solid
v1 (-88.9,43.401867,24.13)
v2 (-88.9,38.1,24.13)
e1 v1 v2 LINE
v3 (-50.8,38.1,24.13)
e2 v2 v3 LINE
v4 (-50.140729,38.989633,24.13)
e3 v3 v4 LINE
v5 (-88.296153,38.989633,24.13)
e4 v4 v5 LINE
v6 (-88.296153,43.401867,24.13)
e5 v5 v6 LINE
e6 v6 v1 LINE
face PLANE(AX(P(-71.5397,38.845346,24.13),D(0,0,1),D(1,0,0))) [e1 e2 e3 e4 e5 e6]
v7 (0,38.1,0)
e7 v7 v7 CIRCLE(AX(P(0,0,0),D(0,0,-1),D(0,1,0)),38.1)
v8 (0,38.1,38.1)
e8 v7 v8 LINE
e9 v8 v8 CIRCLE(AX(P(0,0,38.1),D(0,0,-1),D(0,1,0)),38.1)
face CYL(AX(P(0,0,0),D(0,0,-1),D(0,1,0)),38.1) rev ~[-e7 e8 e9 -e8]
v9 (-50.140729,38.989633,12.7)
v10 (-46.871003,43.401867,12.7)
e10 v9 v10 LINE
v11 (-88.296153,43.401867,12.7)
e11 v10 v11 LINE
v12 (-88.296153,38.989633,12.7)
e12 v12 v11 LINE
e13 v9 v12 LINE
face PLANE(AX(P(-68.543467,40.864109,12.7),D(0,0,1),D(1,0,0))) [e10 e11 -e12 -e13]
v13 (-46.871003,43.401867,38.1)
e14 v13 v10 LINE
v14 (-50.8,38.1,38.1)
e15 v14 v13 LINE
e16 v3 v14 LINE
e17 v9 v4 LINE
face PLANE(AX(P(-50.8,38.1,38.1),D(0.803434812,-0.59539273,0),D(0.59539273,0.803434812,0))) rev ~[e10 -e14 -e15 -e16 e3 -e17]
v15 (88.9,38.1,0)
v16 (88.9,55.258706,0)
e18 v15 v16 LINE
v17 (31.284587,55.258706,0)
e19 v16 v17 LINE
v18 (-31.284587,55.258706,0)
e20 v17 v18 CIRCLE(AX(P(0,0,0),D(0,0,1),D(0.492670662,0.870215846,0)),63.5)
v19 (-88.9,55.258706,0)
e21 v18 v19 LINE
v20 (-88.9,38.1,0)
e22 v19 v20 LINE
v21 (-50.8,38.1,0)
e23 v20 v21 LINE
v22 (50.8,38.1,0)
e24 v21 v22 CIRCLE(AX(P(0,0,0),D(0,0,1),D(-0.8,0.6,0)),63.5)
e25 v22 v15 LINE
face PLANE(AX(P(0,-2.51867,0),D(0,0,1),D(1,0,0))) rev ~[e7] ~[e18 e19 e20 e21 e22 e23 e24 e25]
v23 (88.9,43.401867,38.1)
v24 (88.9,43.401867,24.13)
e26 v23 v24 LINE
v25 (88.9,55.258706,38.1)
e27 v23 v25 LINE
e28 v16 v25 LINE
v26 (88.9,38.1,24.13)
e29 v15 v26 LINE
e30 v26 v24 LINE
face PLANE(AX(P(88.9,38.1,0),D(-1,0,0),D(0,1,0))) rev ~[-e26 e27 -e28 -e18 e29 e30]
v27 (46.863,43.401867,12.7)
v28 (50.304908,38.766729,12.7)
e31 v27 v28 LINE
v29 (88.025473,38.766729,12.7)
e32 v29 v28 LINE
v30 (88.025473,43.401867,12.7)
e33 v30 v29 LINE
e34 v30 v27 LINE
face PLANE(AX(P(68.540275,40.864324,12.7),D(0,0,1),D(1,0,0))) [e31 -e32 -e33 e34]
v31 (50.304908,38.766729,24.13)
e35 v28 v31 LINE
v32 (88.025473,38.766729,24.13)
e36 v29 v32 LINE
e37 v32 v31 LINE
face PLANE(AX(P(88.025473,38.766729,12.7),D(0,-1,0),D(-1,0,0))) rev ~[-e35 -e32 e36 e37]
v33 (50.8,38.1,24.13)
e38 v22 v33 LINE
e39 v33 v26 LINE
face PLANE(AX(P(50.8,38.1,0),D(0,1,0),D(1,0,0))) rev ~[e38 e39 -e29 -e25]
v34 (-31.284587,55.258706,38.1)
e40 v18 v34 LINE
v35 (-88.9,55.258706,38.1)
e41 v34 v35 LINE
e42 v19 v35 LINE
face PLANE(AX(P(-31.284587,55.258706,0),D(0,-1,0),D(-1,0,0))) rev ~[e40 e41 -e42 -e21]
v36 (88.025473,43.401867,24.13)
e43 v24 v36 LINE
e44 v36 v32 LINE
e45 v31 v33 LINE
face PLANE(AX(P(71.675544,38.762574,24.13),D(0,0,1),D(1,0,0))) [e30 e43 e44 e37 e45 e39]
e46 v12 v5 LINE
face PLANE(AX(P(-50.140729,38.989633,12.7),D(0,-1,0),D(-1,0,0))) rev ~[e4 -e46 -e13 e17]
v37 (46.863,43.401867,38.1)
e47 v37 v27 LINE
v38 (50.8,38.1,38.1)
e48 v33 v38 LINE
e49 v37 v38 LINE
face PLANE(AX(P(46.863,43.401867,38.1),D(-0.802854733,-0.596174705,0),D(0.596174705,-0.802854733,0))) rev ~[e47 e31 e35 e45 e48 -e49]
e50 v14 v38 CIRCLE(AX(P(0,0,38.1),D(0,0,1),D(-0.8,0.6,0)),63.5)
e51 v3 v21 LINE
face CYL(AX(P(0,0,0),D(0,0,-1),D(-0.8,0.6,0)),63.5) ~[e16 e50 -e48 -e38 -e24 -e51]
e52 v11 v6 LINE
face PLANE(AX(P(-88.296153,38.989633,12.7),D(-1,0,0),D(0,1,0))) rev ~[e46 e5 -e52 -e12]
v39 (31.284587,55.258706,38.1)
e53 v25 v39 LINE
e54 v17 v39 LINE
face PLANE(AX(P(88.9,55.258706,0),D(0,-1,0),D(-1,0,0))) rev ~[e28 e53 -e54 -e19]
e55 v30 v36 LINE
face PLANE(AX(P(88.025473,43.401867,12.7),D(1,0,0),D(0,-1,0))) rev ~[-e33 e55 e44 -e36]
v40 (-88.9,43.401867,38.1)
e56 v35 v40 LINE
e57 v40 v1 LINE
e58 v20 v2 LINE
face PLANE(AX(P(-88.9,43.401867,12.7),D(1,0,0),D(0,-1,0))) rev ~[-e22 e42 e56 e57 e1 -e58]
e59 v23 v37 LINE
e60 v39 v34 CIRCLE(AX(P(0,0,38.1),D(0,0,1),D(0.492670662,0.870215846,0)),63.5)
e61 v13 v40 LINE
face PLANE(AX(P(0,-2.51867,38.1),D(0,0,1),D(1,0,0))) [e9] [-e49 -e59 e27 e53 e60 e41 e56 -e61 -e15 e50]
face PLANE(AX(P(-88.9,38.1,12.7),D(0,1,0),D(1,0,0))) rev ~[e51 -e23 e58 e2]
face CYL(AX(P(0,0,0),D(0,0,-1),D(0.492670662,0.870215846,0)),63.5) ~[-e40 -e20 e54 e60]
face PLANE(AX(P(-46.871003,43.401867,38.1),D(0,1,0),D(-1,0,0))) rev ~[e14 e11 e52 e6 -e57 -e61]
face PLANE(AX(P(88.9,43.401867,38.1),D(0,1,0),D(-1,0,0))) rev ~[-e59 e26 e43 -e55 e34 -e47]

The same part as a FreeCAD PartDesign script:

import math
import FreeCAD as App
import Part
import Sketcher
Q = App.Units.Quantity

doc = App.newDocument("Part")
params = doc.addObject("Spreadsheet::Sheet", "Params")
for row, (alias, value) in enumerate([
    ("sketch1_diameter", "3 in"),
    ("sketch1_radius", "2.5 in"),
    ("sketch1_width", "1.5 in"),
    ("pad1_length", "1.5 in"),
    ("sketch2_width", "1.5 in"),
    ("sketch2_width2", "1.655 in"),
    ("pocket1_length", "1 in"),
    ("sketch3_width", "1.5 in"),
    ("pad2_length", "0.45 in"),
], start=1):
    params.set(f"A{row}", alias)
    params.set(f"B{row}", "=" + value)
    params.setAlias(f"B{row}", alias)

body = doc.addObject("PartDesign::Body", "Body")

# Sketch on XY plane
sketch1 = body.newObject("Sketcher::SketchObject", "Sketch")
sketch1.AttachmentSupport = (doc.getObject("XY_Plane"), [""])
sketch1.MapMode = "FlatFace"
sketch1.addGeometry([
    Part.LineSegment(App.Vector(89, 55, 0), App.Vector(31, 55, 0)),  # 0
    Part.ArcOfCircle(Part.Circle(App.Vector(0, 0, 0), App.Vector(0, 0, 1), 64), math.radians(60), math.radians(120)),  # 1
    Part.LineSegment(App.Vector(-31, 55, 0), App.Vector(-89, 55, 0)),  # 2
    Part.LineSegment(App.Vector(-89, 55, 0), App.Vector(-89, 38, 0)),  # 3
    Part.LineSegment(App.Vector(-89, 38, 0), App.Vector(-51, 38, 0)),  # 4
    Part.ArcOfCircle(Part.Circle(App.Vector(0, 0, 0), App.Vector(0, 0, 1), 64), math.radians(143), math.radians(397)),  # 5
    Part.LineSegment(App.Vector(51, 38, 0), App.Vector(89, 38, 0)),  # 6
    Part.LineSegment(App.Vector(89, 38, 0), App.Vector(89, 55, 0)),  # 7
    Part.Circle(App.Vector(0, 0, 0), App.Vector(0, 0, 1), 38),  # 8
], False)
sketch1.addConstraint([
    Sketcher.Constraint("Coincident", 0, 2, 1, 1),
    Sketcher.Constraint("Coincident", 1, 2, 2, 1),
    Sketcher.Constraint("Coincident", 2, 2, 3, 1),
    Sketcher.Constraint("Coincident", 3, 2, 4, 1),
    Sketcher.Constraint("Coincident", 4, 2, 5, 1),
    Sketcher.Constraint("Coincident", 5, 2, 6, 1),
    Sketcher.Constraint("Coincident", 6, 2, 7, 1),
    Sketcher.Constraint("Coincident", 7, 2, 0, 1),
    Sketcher.Constraint("Horizontal", 0),
    Sketcher.Constraint("Horizontal", 2),
    Sketcher.Constraint("Vertical", 3),
    Sketcher.Constraint("Horizontal", 4),
    Sketcher.Constraint("Horizontal", 6),
    Sketcher.Constraint("Vertical", 7),
    Sketcher.Constraint("Coincident", 1, 3, -1, 1),
    Sketcher.Constraint("Coincident", 5, 3, -1, 1),
    Sketcher.Constraint("Coincident", 8, 3, -1, 1),
    Sketcher.Constraint("Equal", 1, 5),
    Sketcher.Constraint("Symmetric", 3, 2, 6, 2, -2),
    Sketcher.Constraint("Horizontal", 0, 2, 1, 2),
    Sketcher.Constraint("Diameter", 8, Q("3 in")),
    Sketcher.Constraint("Radius", 1, Q("2.5 in")),
    Sketcher.Constraint("DistanceX", 4, 1, 4, 2, Q("1.5 in")),
    Sketcher.Constraint("DistanceX", 4, 2, -1, 1, Q("2 in")),
    Sketcher.Constraint("DistanceX", 0, 2, 0, 1, 57.615413),
])
sketch1.setExpression("Constraints[20]", "Params.sketch1_diameter")
sketch1.setExpression("Constraints[21]", "Params.sketch1_radius")
sketch1.setExpression("Constraints[22]", "Params.sketch1_width")
pad1 = body.newObject("PartDesign::Pad", "Pad")
pad1.Profile = sketch1
pad1.setExpression("Length", "Params.pad1_length")

# Sketch on XY plane
sketch2 = body.newObject("Sketcher::SketchObject", "Sketch001")
sketch2.AttachmentSupport = (doc.getObject("XY_Plane"), [""])
sketch2.MapMode = "FlatFace"
sketch2.AttachmentOffset = App.Placement(App.Vector(0, 0, 1.5 * 25.4), App.Rotation())
sketch2.addGeometry([
    Part.LineSegment(App.Vector(-47, 43, 0), App.Vector(-89, 43, 0)),  # 0
    Part.LineSegment(App.Vector(-89, 43, 0), App.Vector(-89, 38, 0)),  # 1
    Part.LineSegment(App.Vector(-89, 38, 0), App.Vector(-51, 38, 0)),  # 2
    Part.LineSegment(App.Vector(-51, 38, 0), App.Vector(-47, 43, 0)),  # 3
    Part.LineSegment(App.Vector(89, 38, 0), App.Vector(89, 43, 0)),  # 4
    Part.LineSegment(App.Vector(89, 43, 0), App.Vector(47, 43, 0)),  # 5
    Part.LineSegment(App.Vector(47, 43, 0), App.Vector(51, 38, 0)),  # 6
    Part.LineSegment(App.Vector(51, 38, 0), App.Vector(89, 38, 0)),  # 7
], False)
sketch2.addConstraint([
    Sketcher.Constraint("Coincident", 0, 2, 1, 1),
    Sketcher.Constraint("Coincident", 1, 2, 2, 1),
    Sketcher.Constraint("Coincident", 2, 2, 3, 1),
    Sketcher.Constraint("Coincident", 3, 2, 0, 1),
    Sketcher.Constraint("Coincident", 4, 2, 5, 1),
    Sketcher.Constraint("Coincident", 5, 2, 6, 1),
    Sketcher.Constraint("Coincident", 6, 2, 7, 1),
    Sketcher.Constraint("Coincident", 7, 2, 4, 1),
    Sketcher.Constraint("Horizontal", 0),
    Sketcher.Constraint("Vertical", 1),
    Sketcher.Constraint("Horizontal", 2),
    Sketcher.Constraint("Vertical", 4),
    Sketcher.Constraint("Horizontal", 5),
    Sketcher.Constraint("Horizontal", 7),
    Sketcher.Constraint("Symmetric", 0, 2, 4, 2, -2),
    Sketcher.Constraint("Symmetric", 2, 2, 6, 2, -2),
    Sketcher.Constraint("DistanceX", 2, 1, 2, 2, Q("1.5 in")),
    Sketcher.Constraint("DistanceX", 2, 2, -1, 1, Q("2 in")),
    Sketcher.Constraint("DistanceY", -1, 1, 1, 2, Q("1.5 in")),
    Sketcher.Constraint("DistanceX", 5, 2, 5, 1, Q("1.655 in")),
    Sketcher.Constraint("Distance", 3, 6.599001),
    Sketcher.Constraint("Distance", 6, 6.603769),
])
sketch2.setExpression("Constraints[16]", "Params.sketch2_width")
sketch2.setExpression("Constraints[19]", "Params.sketch2_width2")
pocket1 = body.newObject("PartDesign::Pocket", "Pocket")
pocket1.Profile = sketch2
pocket1.setExpression("Length", "Params.pocket1_length")

# Sketch on XY plane
sketch3 = body.newObject("Sketcher::SketchObject", "Sketch002")
sketch3.AttachmentSupport = (doc.getObject("XY_Plane"), [""])
sketch3.MapMode = "FlatFace"
sketch3.AttachmentOffset = App.Placement(App.Vector(0, 0, 0.5 * 25.4), App.Rotation())
sketch3.addGeometry([
    Part.LineSegment(App.Vector(-50.1, 39, 0), App.Vector(-88.3, 39, 0)),  # 0
    Part.LineSegment(App.Vector(-88.3, 39, 0), App.Vector(-88.3, 43.4, 0)),  # 1
    Part.LineSegment(App.Vector(-88.3, 43.4, 0), App.Vector(-88.9, 43.4, 0)),  # 2
    Part.LineSegment(App.Vector(-88.9, 43.4, 0), App.Vector(-88.9, 38.1, 0)),  # 3
    Part.LineSegment(App.Vector(-88.9, 38.1, 0), App.Vector(-50.8, 38.1, 0)),  # 4
    Part.LineSegment(App.Vector(-50.8, 38.1, 0), App.Vector(-50.1, 39, 0)),  # 5
    Part.LineSegment(App.Vector(88.9, 38.1, 0), App.Vector(88.9, 43.4, 0)),  # 6
    Part.LineSegment(App.Vector(88.9, 43.4, 0), App.Vector(88, 43.4, 0)),  # 7
    Part.LineSegment(App.Vector(88, 43.4, 0), App.Vector(88, 38.8, 0)),  # 8
    Part.LineSegment(App.Vector(88, 38.8, 0), App.Vector(50.3, 38.8, 0)),  # 9
    Part.LineSegment(App.Vector(50.3, 38.8, 0), App.Vector(50.8, 38.1, 0)),  # 10
    Part.LineSegment(App.Vector(50.8, 38.1, 0), App.Vector(88.9, 38.1, 0)),  # 11
], False)
sketch3.addConstraint([
    Sketcher.Constraint("Coincident", 0, 2, 1, 1),
    Sketcher.Constraint("Coincident", 1, 2, 2, 1),
    Sketcher.Constraint("Coincident", 2, 2, 3, 1),
    Sketcher.Constraint("Coincident", 3, 2, 4, 1),
    Sketcher.Constraint("Coincident", 4, 2, 5, 1),
    Sketcher.Constraint("Coincident", 5, 2, 0, 1),
    Sketcher.Constraint("Coincident", 6, 2, 7, 1),
    Sketcher.Constraint("Coincident", 7, 2, 8, 1),
    Sketcher.Constraint("Coincident", 8, 2, 9, 1),
    Sketcher.Constraint("Coincident", 9, 2, 10, 1),
    Sketcher.Constraint("Coincident", 10, 2, 11, 1),
    Sketcher.Constraint("Coincident", 11, 2, 6, 1),
    Sketcher.Constraint("Horizontal", 0),
    Sketcher.Constraint("Vertical", 1),
    Sketcher.Constraint("Horizontal", 2),
    Sketcher.Constraint("Vertical", 3),
    Sketcher.Constraint("Horizontal", 4),
    Sketcher.Constraint("Vertical", 6),
    Sketcher.Constraint("Horizontal", 7),
    Sketcher.Constraint("Vertical", 8),
    Sketcher.Constraint("Horizontal", 9),
    Sketcher.Constraint("Horizontal", 11),
    Sketcher.Constraint("Symmetric", 2, 2, 6, 2, -2),
    Sketcher.Constraint("Symmetric", 4, 2, 10, 2, -2),
    Sketcher.Constraint("DistanceX", 4, 1, 4, 2, Q("1.5 in")),
    Sketcher.Constraint("DistanceX", 4, 2, -1, 1, Q("2 in")),
    Sketcher.Constraint("DistanceY", -1, 1, 3, 2, Q("1.5 in")),
    Sketcher.Constraint("Distance", 10, 0.830448),
    Sketcher.Constraint("DistanceX", 0, 2, 0, 1, 38.155424),
    Sketcher.Constraint("DistanceX", 2, 2, 2, 1, 0.603847),
    Sketcher.Constraint("DistanceX", 7, 2, 7, 1, 0.874527),
    Sketcher.Constraint("DistanceX", 9, 2, 9, 1, 37.720565),
    Sketcher.Constraint("DistanceY", 1, 1, 1, 2, 4.412234),
    Sketcher.Constraint("DistanceY", 3, 2, 3, 1, 5.301867),
])
sketch3.setExpression("Constraints[24]", "Params.sketch3_width")
pad2 = body.newObject("PartDesign::Pad", "Pad001")
pad2.Profile = sketch3
pad2.setExpression("Length", "Params.pad2_length")

doc.recompute()
